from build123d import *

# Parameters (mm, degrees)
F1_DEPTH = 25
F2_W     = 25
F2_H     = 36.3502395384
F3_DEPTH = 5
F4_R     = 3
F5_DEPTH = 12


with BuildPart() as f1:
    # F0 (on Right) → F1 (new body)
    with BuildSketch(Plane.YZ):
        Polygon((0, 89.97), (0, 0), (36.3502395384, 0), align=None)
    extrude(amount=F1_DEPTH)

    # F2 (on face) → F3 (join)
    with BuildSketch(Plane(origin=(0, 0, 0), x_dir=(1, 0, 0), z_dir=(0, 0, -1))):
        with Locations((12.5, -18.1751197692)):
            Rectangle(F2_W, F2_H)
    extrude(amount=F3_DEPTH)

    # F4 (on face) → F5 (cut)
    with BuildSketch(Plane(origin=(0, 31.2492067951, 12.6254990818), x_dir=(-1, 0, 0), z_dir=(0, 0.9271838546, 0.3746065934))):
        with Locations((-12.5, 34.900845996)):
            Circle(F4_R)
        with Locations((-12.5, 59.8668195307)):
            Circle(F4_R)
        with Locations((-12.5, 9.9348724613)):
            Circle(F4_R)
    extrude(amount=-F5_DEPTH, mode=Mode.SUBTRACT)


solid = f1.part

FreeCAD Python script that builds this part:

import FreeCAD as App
import Part
import Sketcher
from FreeCAD import Vector
Q = App.Units.Quantity


def add_polygon(sketch, points):
    """Adds a closed chain of lines whose ends are joined by coincident constraints."""
    first, n = sketch.GeometryCount, len(points)
    for a, b in zip(points, points[1:] + points[:1]):
        sketch.addGeometry(Part.LineSegment(App.Vector(*a, 0), App.Vector(*b, 0)), False)
    for i in range(n):
        sketch.addConstraint(Sketcher.Constraint("Coincident", first + i, 2, first + (i + 1) % n, 1))

doc = App.newDocument("Part")
body = doc.addObject("PartDesign::Body", "Body")

# Sketch on YZ plane
sketch1 = body.newObject("Sketcher::SketchObject", "Sketch")
sketch1.AttachmentSupport = (doc.getObject("YZ_Plane"), [""])
sketch1.MapMode = "FlatFace"
add_polygon(sketch1, [(0, 90), (0, 0), (36, 0)])  # lines 0-2
sketch1.addConstraint(Sketcher.Constraint("Vertical", 0))
sketch1.addConstraint(Sketcher.Constraint("Horizontal", 1))
sketch1.addConstraint(Sketcher.Constraint("Coincident", 0, 2, -1, 1))
sketch1.addConstraint(Sketcher.Constraint("Angle", 2, Q("112 deg")))
sketch1.addConstraint(Sketcher.Constraint("DistanceY", 0, 2, 0, 1, Q("89.97 mm")))
pad1 = body.newObject("PartDesign::Pad", "Pad")
pad1.Profile = sketch1
pad1.Length = 25

# Sketch on XY plane
sketch2 = body.newObject("Sketcher::SketchObject", "Sketch001")
sketch2.AttachmentSupport = (doc.getObject("XY_Plane"), [""])
sketch2.MapMode = "FlatFace"
add_polygon(sketch2, [(0, 0), (0, 36), (25, 36), (25, 0)])  # lines 0-3
sketch2.addConstraint(Sketcher.Constraint("Vertical", 0))
sketch2.addConstraint(Sketcher.Constraint("Horizontal", 1))
sketch2.addConstraint(Sketcher.Constraint("Vertical", 2))
sketch2.addConstraint(Sketcher.Constraint("Horizontal", 3))
sketch2.addConstraint(Sketcher.Constraint("Coincident", 3, 2, -1, 1))
sketch2.addConstraint(Sketcher.Constraint("DistanceX", 1, 1, 1, 2, Q("25 mm")))
sketch2.addConstraint(Sketcher.Constraint("DistanceY", 0, 1, 0, 2, Q("36.35024 mm")))
pad2 = body.newObject("PartDesign::Pad", "Pad001")
pad2.Profile = sketch2
pad2.Length = 5
pad2.Reversed = True

# Sketch on an angled plane
sketch3 = body.newObject("Sketcher::SketchObject", "Sketch002")
sketch3.Placement = App.Placement(Vector(0, 31.249207, 12.625499), App.Rotation(Vector(-1, 0, 0), Vector(0, -0.374606593, 0.927183855), Vector(0, 0.927183855, 0.374606593), "ZXY"))
sketch3.addGeometry(Part.Circle(Vector(-12.5, 34.9, 0), Vector(0, 0, 1), 3), False)
sketch3.addGeometry(Part.Circle(Vector(-12.5, 59.9, 0), Vector(0, 0, 1), 3), False)
sketch3.addGeometry(Part.Circle(Vector(-12.5, 9.9, 0), Vector(0, 0, 1), 3), False)
sketch3.addConstraint(Sketcher.Constraint("Equal", 0, 1))
sketch3.addConstraint(Sketcher.Constraint("Equal", 1, 2))
sketch3.addConstraint(Sketcher.Constraint("Vertical", 0, 3, 1, 3))
sketch3.addConstraint(Sketcher.Constraint("Vertical", 1, 3, 2, 3))
sketch3.addConstraint(Sketcher.Constraint("Diameter", 0, Q("6 mm")))
sketch3.addConstraint(Sketcher.Constraint("DistanceX", 0, 3, -1, 1, Q("12.5 mm")))
sketch3.addConstraint(Sketcher.Constraint("DistanceY", -1, 1, 1, 3, Q("59.86682 mm")))
sketch3.addConstraint(Sketcher.Constraint("DistanceY", -1, 1, 0, 3, Q("34.900846 mm")))
sketch3.addConstraint(Sketcher.Constraint("DistanceY", -1, 1, 2, 3, Q("9.934872 mm")))
pocket1 = body.newObject("PartDesign::Pocket", "Pocket")
pocket1.Profile = sketch3
pocket1.Length = 12

doc.recompute()
